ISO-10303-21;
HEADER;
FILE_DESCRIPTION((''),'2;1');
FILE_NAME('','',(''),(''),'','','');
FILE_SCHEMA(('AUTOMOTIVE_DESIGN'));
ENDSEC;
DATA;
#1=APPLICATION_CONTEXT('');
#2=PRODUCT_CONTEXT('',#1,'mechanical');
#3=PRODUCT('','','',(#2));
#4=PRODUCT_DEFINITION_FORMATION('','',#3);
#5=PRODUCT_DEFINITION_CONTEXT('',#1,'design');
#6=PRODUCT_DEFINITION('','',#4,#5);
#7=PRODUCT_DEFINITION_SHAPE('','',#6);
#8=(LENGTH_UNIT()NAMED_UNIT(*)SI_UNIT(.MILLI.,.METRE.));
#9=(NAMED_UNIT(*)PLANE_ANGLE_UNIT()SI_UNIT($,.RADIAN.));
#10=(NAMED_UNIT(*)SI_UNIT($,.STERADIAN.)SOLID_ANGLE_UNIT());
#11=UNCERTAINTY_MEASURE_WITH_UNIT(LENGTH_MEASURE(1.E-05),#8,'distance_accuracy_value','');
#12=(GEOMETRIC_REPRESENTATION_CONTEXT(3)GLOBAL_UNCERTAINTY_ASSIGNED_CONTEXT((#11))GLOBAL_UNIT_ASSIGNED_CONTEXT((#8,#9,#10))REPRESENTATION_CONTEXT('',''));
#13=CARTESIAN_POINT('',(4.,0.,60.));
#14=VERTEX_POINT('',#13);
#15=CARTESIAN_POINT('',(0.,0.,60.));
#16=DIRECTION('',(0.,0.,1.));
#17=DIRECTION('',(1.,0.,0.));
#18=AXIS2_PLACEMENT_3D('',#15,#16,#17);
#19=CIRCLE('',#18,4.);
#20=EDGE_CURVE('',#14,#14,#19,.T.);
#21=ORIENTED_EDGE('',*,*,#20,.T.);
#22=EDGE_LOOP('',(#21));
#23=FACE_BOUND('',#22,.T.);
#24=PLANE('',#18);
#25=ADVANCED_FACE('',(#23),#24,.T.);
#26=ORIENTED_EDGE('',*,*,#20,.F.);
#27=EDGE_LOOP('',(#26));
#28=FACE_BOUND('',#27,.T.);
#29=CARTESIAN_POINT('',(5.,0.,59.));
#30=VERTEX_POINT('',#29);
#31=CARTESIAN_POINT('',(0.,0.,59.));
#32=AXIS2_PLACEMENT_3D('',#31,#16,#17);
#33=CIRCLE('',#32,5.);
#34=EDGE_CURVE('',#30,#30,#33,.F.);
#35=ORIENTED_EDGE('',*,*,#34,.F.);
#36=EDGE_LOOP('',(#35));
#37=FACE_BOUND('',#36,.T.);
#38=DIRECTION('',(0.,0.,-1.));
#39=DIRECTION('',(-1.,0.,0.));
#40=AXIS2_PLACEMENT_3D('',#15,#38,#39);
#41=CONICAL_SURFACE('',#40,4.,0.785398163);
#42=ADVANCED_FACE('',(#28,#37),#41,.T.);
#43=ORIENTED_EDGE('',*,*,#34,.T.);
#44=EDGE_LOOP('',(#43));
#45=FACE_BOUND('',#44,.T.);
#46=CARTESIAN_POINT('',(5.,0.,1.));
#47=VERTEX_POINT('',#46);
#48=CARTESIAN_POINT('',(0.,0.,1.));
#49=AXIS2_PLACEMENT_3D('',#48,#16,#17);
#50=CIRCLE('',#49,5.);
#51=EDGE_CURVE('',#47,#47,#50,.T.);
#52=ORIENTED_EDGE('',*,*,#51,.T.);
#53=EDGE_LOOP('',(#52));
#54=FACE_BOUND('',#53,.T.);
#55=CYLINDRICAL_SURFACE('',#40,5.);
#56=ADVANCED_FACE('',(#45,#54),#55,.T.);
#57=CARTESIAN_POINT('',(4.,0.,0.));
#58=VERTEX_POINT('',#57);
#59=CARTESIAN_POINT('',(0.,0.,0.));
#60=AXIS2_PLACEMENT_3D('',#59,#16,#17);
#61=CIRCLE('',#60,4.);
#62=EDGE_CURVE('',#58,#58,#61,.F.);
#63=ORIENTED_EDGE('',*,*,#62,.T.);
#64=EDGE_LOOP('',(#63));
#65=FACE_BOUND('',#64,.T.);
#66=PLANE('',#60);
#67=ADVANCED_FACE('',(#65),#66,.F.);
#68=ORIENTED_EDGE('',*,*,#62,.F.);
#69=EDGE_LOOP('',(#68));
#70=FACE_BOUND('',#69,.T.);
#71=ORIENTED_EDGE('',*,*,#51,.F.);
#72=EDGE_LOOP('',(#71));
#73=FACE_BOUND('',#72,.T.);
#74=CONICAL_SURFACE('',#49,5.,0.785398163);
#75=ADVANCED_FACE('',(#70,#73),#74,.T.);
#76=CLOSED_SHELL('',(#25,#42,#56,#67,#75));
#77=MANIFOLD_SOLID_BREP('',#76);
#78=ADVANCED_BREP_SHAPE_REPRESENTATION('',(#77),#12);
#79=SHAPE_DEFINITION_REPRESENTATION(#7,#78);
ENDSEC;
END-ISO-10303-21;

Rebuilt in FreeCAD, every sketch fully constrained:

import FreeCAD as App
import Part
import Sketcher
Q = App.Units.Quantity


def edges_at(feature, points):
    """Names of the edges that pass closest to the given points."""
    edges = feature.Shape.Edges
    near = lambda p: min(range(len(edges)), key=lambda i: edges[i].distToShape(Part.Vertex(*p))[0])
    return sorted({f"Edge{near(p) + 1}" for p in points})

doc = App.newDocument("Part")
params = doc.addObject("Spreadsheet::Sheet", "Params")
for row, (alias, value) in enumerate([
    ("sketch1_diameter", "10 mm"),
    ("pad1_length", "60 mm"),
    ("chamfer_size", "1 mm"),
], start=1):
    params.set(f"A{row}", alias)
    params.set(f"B{row}", "=" + value)
    params.setAlias(f"B{row}", alias)

body = doc.addObject("PartDesign::Body", "Body")

sketch1 = doc.addObject("Sketcher::SketchObject", "Sketch")
body.addObject(sketch1)
sketch1.AttachmentSupport = (doc.XY_Plane, [""])
sketch1.MapMode = "FlatFace"
sketch1.addGeometry(Part.Circle(App.Vector(0, 0, 0), App.Vector(0, 0, 1), 5), False)
sketch1.addConstraint(Sketcher.Constraint("Coincident", 0, 3, -1, 1))
sketch1.addConstraint(Sketcher.Constraint("Diameter", 0, Q("10 mm")))
sketch1.setExpression("Constraints[1]", "Params.sketch1_diameter")
pad1 = doc.addObject("PartDesign::Pad", "Pad")
body.addObject(pad1)
pad1.Profile = sketch1
pad1.setExpression("Length", "Params.pad1_length")
doc.recompute()

chamfer = doc.addObject("PartDesign::Chamfer", "Chamfer")
body.addObject(chamfer)
chamfer.Base = (pad1, edges_at(pad1, [(-5, 0, 0), (-5, 0, 60)]))
chamfer.setExpression("Size", "Params.chamfer_size")

doc.recompute()
